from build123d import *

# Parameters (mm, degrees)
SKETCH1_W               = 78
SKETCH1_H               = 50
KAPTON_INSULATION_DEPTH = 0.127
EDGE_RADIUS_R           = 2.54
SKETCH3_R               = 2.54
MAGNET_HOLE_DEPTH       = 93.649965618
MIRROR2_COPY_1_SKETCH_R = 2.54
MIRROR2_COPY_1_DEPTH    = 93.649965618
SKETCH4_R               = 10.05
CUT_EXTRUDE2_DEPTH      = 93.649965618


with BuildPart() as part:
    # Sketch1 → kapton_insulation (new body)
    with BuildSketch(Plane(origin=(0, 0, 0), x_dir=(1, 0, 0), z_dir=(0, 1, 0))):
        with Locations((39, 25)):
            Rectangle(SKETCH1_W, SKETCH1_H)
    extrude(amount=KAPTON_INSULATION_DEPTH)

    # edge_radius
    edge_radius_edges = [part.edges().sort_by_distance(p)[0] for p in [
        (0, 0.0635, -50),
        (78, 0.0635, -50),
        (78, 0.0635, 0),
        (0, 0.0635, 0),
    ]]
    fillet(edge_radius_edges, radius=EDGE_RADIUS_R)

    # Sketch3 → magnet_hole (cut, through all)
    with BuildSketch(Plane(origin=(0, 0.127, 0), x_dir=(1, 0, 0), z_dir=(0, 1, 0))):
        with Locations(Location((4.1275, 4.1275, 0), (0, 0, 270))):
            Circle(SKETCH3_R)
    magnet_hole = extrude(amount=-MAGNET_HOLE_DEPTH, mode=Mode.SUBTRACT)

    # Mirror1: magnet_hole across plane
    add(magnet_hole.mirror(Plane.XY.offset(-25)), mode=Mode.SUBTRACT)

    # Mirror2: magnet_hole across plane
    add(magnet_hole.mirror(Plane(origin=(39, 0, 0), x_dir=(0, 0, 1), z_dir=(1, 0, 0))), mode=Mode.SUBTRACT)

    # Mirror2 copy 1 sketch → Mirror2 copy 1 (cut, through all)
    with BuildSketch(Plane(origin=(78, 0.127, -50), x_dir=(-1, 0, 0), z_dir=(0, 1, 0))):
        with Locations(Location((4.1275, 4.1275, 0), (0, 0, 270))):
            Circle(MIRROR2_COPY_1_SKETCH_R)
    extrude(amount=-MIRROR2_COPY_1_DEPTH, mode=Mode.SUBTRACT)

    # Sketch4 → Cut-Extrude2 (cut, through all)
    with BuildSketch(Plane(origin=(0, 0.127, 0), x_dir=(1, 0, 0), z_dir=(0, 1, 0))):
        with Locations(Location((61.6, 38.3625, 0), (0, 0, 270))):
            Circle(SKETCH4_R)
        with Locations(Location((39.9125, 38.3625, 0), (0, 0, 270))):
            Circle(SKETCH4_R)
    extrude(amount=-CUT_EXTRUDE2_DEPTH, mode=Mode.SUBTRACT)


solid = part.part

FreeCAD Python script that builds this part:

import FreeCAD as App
import Part
import Sketcher
from FreeCAD import Vector
Q = App.Units.Quantity


def edges_at(feature, points):
    """Names of the edges that pass closest to the given points."""
    edges = feature.Shape.Edges
    near = lambda p: min(range(len(edges)), key=lambda i: edges[i].distToShape(Part.Vertex(*p))[0])
    return sorted({f"Edge{near(p) + 1}" for p in points})


def add_polygon(sketch, points):
    """Adds a closed chain of lines whose ends are joined by coincident constraints."""
    first, n = sketch.GeometryCount, len(points)
    for a, b in zip(points, points[1:] + points[:1]):
        sketch.addGeometry(Part.LineSegment(App.Vector(*a, 0), App.Vector(*b, 0)), False)
    for i in range(n):
        sketch.addConstraint(Sketcher.Constraint("Coincident", first + i, 2, first + (i + 1) % n, 1))

doc = App.newDocument("Part")
body = doc.addObject("PartDesign::Body", "Body")

# Sketch on XZ plane
sketch1 = body.newObject("Sketcher::SketchObject", "Sketch")
sketch1.AttachmentSupport = (doc.getObject("XZ_Plane"), [""])
sketch1.MapMode = "FlatFace"
add_polygon(sketch1, [(0, -50), (0, 0), (78, 0), (78, -50)])  # lines 0-3
sketch1.addConstraint([
    Sketcher.Constraint("Vertical", 0),
    Sketcher.Constraint("Horizontal", 1),
    Sketcher.Constraint("Vertical", 2),
    Sketcher.Constraint("Horizontal", 3),
    Sketcher.Constraint("Coincident", 0, 2, -1, 1),
    Sketcher.Constraint("DistanceX", 1, 1, 1, 2, Q("78 mm")),
    Sketcher.Constraint("DistanceY", 0, 1, 0, 2, Q("50 mm")),
])
pad1 = body.newObject("PartDesign::Pad", "Pad")
pad1.Profile = sketch1
pad1.Length = 0.127
pad1.Reversed = True
doc.recompute()

fillet = body.newObject("PartDesign::Fillet", "Fillet")
fillet.Base = (pad1, edges_at(pad1, [
    (0, 0.064, -50),
    (78, 0.064, -50),
    (78, 0.064, 0),
    (0, 0.064, 0),
]))
fillet.Radius = 2.54

# Sketch on XZ plane
sketch2 = body.newObject("Sketcher::SketchObject", "Sketch001")
sketch2.AttachmentSupport = (doc.getObject("XZ_Plane"), [""])
sketch2.MapMode = "FlatFace"
sketch2.AttachmentOffset = App.Placement(Vector(0, 0, -0.127), App.Rotation())
sketch2.addGeometry(Part.Circle(Vector(4.1, -4.1, 0), Vector(0, 0, 1), 2.5), False)
sketch2.addConstraint([
    Sketcher.Constraint("Diameter", 0, Q("5.08 mm")),
    Sketcher.Constraint("DistanceX", -1, 1, 0, 3, Q("4.1275 mm")),
    Sketcher.Constraint("DistanceY", 0, 3, -1, 1, Q("4.1275 mm")),
])
pocket1 = body.newObject("PartDesign::Pocket", "Pocket")
pocket1.Profile = sketch2
pocket1.Type = "ThroughAll"
pocket1.Reversed = True
doc.recompute()

datumplane = body.newObject("PartDesign::Plane", "DatumPlane")
datumplane.AttachmentSupport = (doc.getObject("XY_Plane"), [""])
datumplane.MapMode = "FlatFace"
datumplane.AttachmentOffset = App.Placement(Vector(0, 0, -25), App.Rotation())
mirrored = body.newObject("PartDesign::Mirrored", "Mirrored")
mirrored.Originals = [pocket1]
mirrored.MirrorPlane = (datumplane, [""])
body.Tip = mirrored
doc.recompute()

datumplane2 = body.newObject("PartDesign::Plane", "DatumPlane001")
datumplane2.AttachmentSupport = (doc.getObject("YZ_Plane"), [""])
datumplane2.MapMode = "FlatFace"
datumplane2.AttachmentOffset = App.Placement(Vector(0, 0, 39), App.Rotation())
mirrored2 = body.newObject("PartDesign::Mirrored", "Mirrored001")
mirrored2.Originals = [pocket1]
mirrored2.MirrorPlane = (datumplane2, [""])
body.Tip = mirrored2

# Sketch on XZ plane
sketch3 = body.newObject("Sketcher::SketchObject", "Sketch002")
sketch3.AttachmentSupport = (doc.getObject("XZ_Plane"), [""])
sketch3.MapMode = "FlatFace"
sketch3.AttachmentOffset = App.Placement(Vector(0, 0, -0.127), App.Rotation())
sketch3.addGeometry(Part.Circle(Vector(73.9, -45.9, 0), Vector(0, 0, 1), 2.5), False)
sketch3.addConstraint([
    Sketcher.Constraint("Diameter", 0, Q("5.08 mm")),
    Sketcher.Constraint("DistanceX", -1, 1, 0, 3, Q("73.8725 mm")),
    Sketcher.Constraint("DistanceY", 0, 3, -1, 1, Q("45.8725 mm")),
])
pocket2 = body.newObject("PartDesign::Pocket", "Pocket001")
pocket2.Profile = sketch3
pocket2.Type = "ThroughAll"
pocket2.Reversed = True

# Sketch on XZ plane
sketch4 = body.newObject("Sketcher::SketchObject", "Sketch003")
sketch4.AttachmentSupport = (doc.getObject("XZ_Plane"), [""])
sketch4.MapMode = "FlatFace"
sketch4.AttachmentOffset = App.Placement(Vector(0, 0, -0.127), App.Rotation())
sketch4.addGeometry([
    Part.Circle(Vector(62, -38, 0), Vector(0, 0, 1), 10),
    Part.Circle(Vector(40, -38, 0), Vector(0, 0, 1), 10),
], False)
sketch4.addConstraint([
    Sketcher.Constraint("Equal", 0, 1),
    Sketcher.Constraint("Horizontal", 0, 3, 1, 3),
    Sketcher.Constraint("Diameter", 0, Q("20.1 mm")),
    Sketcher.Constraint("DistanceX", -1, 1, 0, 3, Q("61.6 mm")),
    Sketcher.Constraint("DistanceY", 0, 3, -1, 1, Q("38.3625 mm")),
    Sketcher.Constraint("DistanceX", -1, 1, 1, 3, Q("39.9125 mm")),
])
pocket3 = body.newObject("PartDesign::Pocket", "Pocket002")
pocket3.Profile = sketch4
pocket3.Type = "ThroughAll"
pocket3.Reversed = True

doc.recompute()
